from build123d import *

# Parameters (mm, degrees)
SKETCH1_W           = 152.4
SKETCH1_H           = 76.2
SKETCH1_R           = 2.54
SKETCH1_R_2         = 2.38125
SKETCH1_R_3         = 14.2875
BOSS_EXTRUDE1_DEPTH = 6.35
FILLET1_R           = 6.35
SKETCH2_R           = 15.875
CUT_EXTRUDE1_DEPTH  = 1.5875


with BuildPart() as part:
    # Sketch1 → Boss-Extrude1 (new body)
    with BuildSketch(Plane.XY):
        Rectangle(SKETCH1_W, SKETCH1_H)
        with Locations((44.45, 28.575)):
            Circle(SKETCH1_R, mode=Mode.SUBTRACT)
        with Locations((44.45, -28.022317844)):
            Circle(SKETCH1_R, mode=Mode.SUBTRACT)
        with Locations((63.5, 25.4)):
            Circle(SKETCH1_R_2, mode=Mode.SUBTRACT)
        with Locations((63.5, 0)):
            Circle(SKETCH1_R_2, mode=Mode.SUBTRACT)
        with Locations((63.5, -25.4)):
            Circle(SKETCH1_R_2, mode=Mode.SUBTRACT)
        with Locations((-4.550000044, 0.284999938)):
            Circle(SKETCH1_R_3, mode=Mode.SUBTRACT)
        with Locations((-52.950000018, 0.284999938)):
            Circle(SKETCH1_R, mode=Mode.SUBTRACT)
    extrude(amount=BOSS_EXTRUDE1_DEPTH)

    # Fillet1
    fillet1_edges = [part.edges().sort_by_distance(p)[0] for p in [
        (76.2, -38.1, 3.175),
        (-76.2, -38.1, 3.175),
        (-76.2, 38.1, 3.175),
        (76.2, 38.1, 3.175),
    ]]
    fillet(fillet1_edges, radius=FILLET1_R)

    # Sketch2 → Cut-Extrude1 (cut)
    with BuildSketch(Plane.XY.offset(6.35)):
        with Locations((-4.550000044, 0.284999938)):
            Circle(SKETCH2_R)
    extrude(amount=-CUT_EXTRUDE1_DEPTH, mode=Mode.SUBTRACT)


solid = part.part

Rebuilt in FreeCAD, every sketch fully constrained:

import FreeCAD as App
import Part
import Sketcher

V = App.Vector
Q = App.Units.Quantity


def edges_at(feature, points):
    """Names of the edges that pass closest to the given points."""
    edges = feature.Shape.Edges
    near = lambda p: min(range(len(edges)), key=lambda i: edges[i].distToShape(Part.Vertex(*p))[0])
    return sorted({f"Edge{near(p) + 1}" for p in points})


def add_polygon(sketch, points):
    """Adds a closed chain of lines whose ends are joined by coincident constraints."""
    first, n = sketch.GeometryCount, len(points)
    for a, b in zip(points, points[1:] + points[:1]):
        sketch.addGeometry(Part.LineSegment(App.Vector(*a, 0), App.Vector(*b, 0)), False)
    for i in range(n):
        sketch.addConstraint(Sketcher.Constraint("Coincident", first + i, 2, first + (i + 1) % n, 1))

doc = App.newDocument("Part")
body = doc.addObject("PartDesign::Body", "Body")

# Sketch on XY plane
sketch1 = body.newObject("Sketcher::SketchObject", "Sketch")
sketch1.AttachmentSupport = (doc.getObject("XY_Plane"), [""])
sketch1.MapMode = "FlatFace"
add_polygon(sketch1, [(-76.2, 38.1), (-76.2, -38.1), (76.2, -38.1), (76.2, 38.1)])  # lines 0-3
sketch1.addGeometry(Part.Circle(V(44.5, -28, 0), V(0, 0, 1), 2.5), False)  # 4
sketch1.addGeometry(Part.Circle(V(63.5, -25.4, 0), V(0, 0, 1), 2.4), False)  # 5
sketch1.addGeometry(Part.Circle(V(63.5, 0, 0), V(0, 0, 1), 2.4), False)  # 6
sketch1.addGeometry(Part.Circle(V(-53, 0.3, 0), V(0, 0, 1), 2.5), False)  # 7
sketch1.addGeometry(Part.Circle(V(-4.6, 0.3, 0), V(0, 0, 1), 14.3), False)  # 8
sketch1.addGeometry(Part.Circle(V(44.5, 28.6, 0), V(0, 0, 1), 2.5), False)  # 9
sketch1.addGeometry(Part.Circle(V(63.5, 25.4, 0), V(0, 0, 1), 2.4), False)  # 10
sketch1.addConstraint(Sketcher.Constraint("Vertical", 0))
sketch1.addConstraint(Sketcher.Constraint("Horizontal", 1))
sketch1.addConstraint(Sketcher.Constraint("Vertical", 2))
sketch1.addConstraint(Sketcher.Constraint("Horizontal", 3))
sketch1.addConstraint(Sketcher.Constraint("Equal", 5, 6))
sketch1.addConstraint(Sketcher.Constraint("Equal", 4, 7))
sketch1.addConstraint(Sketcher.Constraint("Equal", 7, 9))
sketch1.addConstraint(Sketcher.Constraint("Equal", 6, 10))
sketch1.addConstraint(Sketcher.Constraint("Symmetric", 0, 2, 2, 2, -1, 1))
sketch1.addConstraint(Sketcher.Constraint("Symmetric", 5, 3, 10, 3, -1))
sketch1.addConstraint(Sketcher.Constraint("PointOnObject", 6, 3, -1))
sketch1.addConstraint(Sketcher.Constraint("Horizontal", 7, 3, 8, 3))
sketch1.addConstraint(Sketcher.Constraint("Vertical", 5, 3, 6, 3))
sketch1.addConstraint(Sketcher.Constraint("Vertical", 4, 3, 9, 3))
sketch1.addConstraint(Sketcher.Constraint("Diameter", 4, Q("0.2 in")))
sketch1.addConstraint(Sketcher.Constraint("DistanceX", 1, 1, 1, 2, Q("6 in")))
sketch1.addConstraint(Sketcher.Constraint("DistanceY", 0, 2, 0, 1, Q("3 in")))
sketch1.addConstraint(Sketcher.Constraint("Diameter", 5, Q("0.1875 in")))
sketch1.addConstraint(Sketcher.Constraint("Diameter", 8, Q("1.125 in")))
sketch1.addConstraint(Sketcher.Constraint("DistanceY", 5, 3, -1, 1, Q("1 in")))
sketch1.addConstraint(Sketcher.Constraint("DistanceX", -1, 1, 5, 3, Q("2.5 in")))
sketch1.addConstraint(Sketcher.Constraint("DistanceX", -1, 1, 4, 3, Q("1.75 in")))
sketch1.addConstraint(Sketcher.Constraint("DistanceY", -1, 1, 9, 3, Q("1.125 in")))
sketch1.addConstraint(Sketcher.Constraint("DistanceX", 7, 3, -1, 1, Q("52.95 mm")))
sketch1.addConstraint(Sketcher.Constraint("DistanceY", -1, 1, 7, 3, Q("0.285 mm")))
sketch1.addConstraint(Sketcher.Constraint("DistanceX", 8, 3, -1, 1, Q("4.55 mm")))
sketch1.addConstraint(Sketcher.Constraint("DistanceY", 4, 3, -1, 1, Q("28.022318 mm")))
pad1 = body.newObject("PartDesign::Pad", "Pad")
pad1.Profile = sketch1
pad1.Length = Q("0.25 in")
doc.recompute()

fillet = body.newObject("PartDesign::Fillet", "Fillet")
fillet.Base = (pad1, edges_at(pad1, [
    (76.2, -38.1, 3.175),
    (-76.2, -38.1, 3.175),
    (-76.2, 38.1, 3.175),
    (76.2, 38.1, 3.175),
]))
fillet.Radius = Q("0.25 in")

# Sketch on XY plane
sketch2 = body.newObject("Sketcher::SketchObject", "Sketch001")
sketch2.AttachmentSupport = (doc.getObject("XY_Plane"), [""])
sketch2.MapMode = "FlatFace"
sketch2.AttachmentOffset = App.Placement(V(0, 0, 0.25 * 25.4), App.Rotation())
sketch2.addGeometry(Part.Circle(V(-5, 0, 0), V(0, 0, 1), 16), False)
sketch2.addConstraint(Sketcher.Constraint("Diameter", 0, Q("1.25 in")))
sketch2.addConstraint(Sketcher.Constraint("DistanceX", 0, 3, -1, 1, Q("4.55 mm")))
sketch2.addConstraint(Sketcher.Constraint("DistanceY", -1, 1, 0, 3, Q("0.285 mm")))
pocket1 = body.newObject("PartDesign::Pocket", "Pocket")
pocket1.Profile = sketch2
pocket1.Length = Q("0.0625 in")

doc.recompute()
